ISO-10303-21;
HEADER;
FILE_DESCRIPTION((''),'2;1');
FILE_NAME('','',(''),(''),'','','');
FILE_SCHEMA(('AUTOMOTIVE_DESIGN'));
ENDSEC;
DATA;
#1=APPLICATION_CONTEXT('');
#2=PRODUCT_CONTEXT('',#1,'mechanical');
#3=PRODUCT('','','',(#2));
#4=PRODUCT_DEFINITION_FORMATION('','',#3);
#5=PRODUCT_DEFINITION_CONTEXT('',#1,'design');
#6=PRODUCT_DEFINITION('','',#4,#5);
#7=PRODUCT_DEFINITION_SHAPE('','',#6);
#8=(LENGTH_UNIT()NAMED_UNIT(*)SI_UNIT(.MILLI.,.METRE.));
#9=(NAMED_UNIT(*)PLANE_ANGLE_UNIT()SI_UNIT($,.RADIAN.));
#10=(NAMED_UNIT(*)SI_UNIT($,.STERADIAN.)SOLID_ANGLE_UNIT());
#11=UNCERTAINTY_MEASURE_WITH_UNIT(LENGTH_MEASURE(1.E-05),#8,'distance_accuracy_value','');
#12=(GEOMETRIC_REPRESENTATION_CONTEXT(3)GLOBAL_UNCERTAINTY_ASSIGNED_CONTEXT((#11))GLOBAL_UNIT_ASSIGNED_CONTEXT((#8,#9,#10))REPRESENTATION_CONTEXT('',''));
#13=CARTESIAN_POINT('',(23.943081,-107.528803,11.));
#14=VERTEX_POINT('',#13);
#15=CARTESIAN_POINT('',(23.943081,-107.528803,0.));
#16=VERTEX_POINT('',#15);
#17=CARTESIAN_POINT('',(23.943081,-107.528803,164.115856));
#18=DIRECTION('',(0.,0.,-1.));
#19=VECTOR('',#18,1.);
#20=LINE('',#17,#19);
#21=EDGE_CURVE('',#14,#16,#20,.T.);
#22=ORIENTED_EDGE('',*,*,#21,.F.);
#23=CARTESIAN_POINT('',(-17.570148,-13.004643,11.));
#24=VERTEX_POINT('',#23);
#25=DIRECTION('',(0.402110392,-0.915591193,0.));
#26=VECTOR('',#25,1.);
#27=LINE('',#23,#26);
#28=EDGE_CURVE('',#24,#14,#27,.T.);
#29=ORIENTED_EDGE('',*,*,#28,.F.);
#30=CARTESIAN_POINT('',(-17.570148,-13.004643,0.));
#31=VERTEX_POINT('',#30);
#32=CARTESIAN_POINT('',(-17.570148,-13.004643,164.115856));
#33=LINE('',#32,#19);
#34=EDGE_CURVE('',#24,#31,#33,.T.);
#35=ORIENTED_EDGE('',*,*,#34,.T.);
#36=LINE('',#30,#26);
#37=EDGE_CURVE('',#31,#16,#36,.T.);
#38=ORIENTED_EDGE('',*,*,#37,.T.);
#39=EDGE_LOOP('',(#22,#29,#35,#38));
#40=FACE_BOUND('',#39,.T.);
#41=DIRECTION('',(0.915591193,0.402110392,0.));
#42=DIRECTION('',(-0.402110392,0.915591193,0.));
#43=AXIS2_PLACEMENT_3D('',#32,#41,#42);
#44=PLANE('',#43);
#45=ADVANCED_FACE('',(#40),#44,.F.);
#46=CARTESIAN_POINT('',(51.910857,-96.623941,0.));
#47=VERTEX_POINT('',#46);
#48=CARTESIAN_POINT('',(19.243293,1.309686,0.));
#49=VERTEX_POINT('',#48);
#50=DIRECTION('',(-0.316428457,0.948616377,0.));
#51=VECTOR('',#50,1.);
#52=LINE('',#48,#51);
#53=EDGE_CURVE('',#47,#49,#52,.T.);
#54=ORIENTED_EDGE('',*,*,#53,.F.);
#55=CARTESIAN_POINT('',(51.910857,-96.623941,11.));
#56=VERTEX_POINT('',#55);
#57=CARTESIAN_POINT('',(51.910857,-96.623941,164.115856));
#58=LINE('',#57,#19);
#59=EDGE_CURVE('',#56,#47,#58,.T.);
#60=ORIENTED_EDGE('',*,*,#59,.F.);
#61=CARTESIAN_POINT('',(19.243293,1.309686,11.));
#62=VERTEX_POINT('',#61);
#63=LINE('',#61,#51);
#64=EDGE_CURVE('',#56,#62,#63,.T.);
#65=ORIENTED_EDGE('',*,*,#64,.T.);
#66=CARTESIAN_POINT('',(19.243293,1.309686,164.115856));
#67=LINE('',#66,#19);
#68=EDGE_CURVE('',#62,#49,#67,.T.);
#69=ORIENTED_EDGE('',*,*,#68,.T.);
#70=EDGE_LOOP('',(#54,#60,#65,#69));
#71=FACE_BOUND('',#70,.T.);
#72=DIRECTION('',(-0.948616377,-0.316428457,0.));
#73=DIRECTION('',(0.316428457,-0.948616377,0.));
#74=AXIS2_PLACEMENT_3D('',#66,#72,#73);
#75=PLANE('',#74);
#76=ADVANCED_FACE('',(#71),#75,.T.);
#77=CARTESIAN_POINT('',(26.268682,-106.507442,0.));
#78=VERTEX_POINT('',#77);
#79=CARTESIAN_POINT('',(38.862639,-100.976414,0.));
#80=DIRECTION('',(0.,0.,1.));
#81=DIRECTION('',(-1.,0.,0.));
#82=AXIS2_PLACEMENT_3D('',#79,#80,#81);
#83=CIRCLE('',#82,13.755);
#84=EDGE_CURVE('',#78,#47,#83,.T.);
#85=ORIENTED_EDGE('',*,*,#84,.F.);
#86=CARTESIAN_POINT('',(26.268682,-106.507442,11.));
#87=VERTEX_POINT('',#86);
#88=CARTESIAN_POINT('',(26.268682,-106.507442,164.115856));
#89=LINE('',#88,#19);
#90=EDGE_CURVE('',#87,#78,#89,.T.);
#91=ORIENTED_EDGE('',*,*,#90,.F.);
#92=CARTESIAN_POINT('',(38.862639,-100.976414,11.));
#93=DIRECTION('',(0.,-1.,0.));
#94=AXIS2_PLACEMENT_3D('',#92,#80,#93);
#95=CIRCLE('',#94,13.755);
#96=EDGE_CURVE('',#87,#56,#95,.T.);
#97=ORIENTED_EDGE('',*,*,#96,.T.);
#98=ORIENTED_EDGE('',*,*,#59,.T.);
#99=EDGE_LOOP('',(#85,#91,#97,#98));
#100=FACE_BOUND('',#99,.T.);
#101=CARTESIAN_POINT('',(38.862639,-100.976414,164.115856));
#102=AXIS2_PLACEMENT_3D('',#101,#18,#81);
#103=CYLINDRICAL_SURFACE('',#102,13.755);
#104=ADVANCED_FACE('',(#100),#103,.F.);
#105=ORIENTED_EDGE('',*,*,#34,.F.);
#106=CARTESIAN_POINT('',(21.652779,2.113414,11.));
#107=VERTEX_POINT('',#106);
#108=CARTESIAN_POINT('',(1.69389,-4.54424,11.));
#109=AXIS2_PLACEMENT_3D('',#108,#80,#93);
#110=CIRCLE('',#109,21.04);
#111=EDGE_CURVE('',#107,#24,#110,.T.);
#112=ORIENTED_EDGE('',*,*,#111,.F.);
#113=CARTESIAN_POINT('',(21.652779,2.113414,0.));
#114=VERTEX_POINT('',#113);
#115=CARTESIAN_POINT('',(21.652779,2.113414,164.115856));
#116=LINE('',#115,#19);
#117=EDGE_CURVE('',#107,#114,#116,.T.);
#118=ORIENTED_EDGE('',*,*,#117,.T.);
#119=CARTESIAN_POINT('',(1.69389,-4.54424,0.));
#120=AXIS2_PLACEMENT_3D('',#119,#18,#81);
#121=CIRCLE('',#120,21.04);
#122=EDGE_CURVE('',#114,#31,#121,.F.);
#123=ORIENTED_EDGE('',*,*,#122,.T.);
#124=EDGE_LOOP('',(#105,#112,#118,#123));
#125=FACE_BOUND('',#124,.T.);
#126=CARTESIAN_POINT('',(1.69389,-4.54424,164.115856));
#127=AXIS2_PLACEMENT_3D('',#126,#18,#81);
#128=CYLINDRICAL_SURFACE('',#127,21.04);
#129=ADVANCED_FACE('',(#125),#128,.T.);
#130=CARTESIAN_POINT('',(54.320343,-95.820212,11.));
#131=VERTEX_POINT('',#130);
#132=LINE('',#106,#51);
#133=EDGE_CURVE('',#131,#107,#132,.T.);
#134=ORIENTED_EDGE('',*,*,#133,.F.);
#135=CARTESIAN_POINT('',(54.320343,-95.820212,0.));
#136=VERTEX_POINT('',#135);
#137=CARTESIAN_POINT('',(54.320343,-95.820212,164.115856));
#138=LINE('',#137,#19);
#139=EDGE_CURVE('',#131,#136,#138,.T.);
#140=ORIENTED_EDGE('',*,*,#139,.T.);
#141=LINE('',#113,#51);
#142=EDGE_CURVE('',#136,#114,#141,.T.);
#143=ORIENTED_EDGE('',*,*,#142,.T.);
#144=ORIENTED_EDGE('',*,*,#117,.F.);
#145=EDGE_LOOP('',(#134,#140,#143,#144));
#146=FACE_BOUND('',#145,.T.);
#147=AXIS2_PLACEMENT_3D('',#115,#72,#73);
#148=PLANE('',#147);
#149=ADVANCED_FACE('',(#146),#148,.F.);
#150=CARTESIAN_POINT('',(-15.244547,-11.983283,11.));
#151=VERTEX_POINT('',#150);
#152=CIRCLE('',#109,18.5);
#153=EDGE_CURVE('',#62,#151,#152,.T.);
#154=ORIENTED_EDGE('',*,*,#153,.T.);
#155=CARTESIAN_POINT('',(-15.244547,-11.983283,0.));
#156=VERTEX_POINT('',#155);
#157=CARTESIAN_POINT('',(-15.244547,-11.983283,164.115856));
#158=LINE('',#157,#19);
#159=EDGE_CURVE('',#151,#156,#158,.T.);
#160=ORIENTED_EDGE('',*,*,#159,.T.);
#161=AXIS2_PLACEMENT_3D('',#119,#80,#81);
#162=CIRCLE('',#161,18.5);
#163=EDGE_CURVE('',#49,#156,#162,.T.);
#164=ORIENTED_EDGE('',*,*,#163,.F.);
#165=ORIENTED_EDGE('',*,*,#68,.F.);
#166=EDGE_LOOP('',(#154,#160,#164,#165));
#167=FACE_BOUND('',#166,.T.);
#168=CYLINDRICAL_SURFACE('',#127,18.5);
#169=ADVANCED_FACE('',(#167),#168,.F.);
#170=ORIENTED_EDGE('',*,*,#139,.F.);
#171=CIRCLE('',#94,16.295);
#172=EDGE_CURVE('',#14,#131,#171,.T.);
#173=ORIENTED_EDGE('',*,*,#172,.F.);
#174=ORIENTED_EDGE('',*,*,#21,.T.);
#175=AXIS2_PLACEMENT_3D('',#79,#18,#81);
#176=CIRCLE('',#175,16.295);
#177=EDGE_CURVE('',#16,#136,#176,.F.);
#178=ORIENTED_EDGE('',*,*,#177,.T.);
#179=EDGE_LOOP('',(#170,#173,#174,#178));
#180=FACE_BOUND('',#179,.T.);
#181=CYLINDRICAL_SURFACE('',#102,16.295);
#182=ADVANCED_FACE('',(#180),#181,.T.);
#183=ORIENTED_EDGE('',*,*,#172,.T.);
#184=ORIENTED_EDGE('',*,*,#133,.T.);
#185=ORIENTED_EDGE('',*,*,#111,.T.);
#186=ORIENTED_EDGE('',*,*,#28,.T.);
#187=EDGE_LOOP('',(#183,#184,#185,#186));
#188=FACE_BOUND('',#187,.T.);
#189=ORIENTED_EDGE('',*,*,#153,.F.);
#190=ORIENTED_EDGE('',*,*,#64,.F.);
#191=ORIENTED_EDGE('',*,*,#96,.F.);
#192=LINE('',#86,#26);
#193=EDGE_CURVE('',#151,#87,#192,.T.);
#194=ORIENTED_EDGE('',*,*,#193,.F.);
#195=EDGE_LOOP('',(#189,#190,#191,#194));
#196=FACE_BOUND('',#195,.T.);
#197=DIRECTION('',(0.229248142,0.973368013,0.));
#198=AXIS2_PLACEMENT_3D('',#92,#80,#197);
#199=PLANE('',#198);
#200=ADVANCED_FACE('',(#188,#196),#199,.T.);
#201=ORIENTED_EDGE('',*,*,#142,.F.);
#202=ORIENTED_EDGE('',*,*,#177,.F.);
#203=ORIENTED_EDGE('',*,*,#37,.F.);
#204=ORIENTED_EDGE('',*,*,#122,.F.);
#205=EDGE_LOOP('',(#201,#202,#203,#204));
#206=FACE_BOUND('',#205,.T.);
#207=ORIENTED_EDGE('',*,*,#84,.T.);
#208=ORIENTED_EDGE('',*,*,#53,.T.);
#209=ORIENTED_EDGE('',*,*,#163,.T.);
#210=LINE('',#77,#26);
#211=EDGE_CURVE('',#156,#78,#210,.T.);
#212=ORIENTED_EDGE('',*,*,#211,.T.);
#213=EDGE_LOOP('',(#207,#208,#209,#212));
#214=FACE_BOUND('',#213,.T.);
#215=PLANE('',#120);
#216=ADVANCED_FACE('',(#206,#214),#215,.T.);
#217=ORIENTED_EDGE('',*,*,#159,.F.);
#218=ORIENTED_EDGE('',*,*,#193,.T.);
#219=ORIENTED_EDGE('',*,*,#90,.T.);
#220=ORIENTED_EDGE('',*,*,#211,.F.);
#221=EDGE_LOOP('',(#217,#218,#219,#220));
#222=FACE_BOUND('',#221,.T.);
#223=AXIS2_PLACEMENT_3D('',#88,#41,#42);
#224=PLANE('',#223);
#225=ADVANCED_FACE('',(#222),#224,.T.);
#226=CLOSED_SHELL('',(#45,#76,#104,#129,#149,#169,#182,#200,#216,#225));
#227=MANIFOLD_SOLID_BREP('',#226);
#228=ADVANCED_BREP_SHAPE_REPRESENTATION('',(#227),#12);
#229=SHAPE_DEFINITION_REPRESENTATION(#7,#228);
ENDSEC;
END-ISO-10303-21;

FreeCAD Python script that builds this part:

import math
import FreeCAD as App
import Part
import Sketcher

doc = App.newDocument("Part")
body = doc.addObject("PartDesign::Body", "Body")

# Sketch on XY plane
sketch1 = body.newObject("Sketcher::SketchObject", "Sketch")
sketch1.AttachmentSupport = (doc.getObject("XY_Plane"), [""])
sketch1.MapMode = "FlatFace"
sketch1.addGeometry(Part.LineSegment(App.Vector(-18, -13, 0), App.Vector(24, -108, 0)), False)
sketch1.addGeometry(Part.ArcOfCircle(Part.Circle(App.Vector(39, -101, 0), App.Vector(0, 0, 1), 16), math.radians(-156), math.radians(18)), False)
sketch1.addGeometry(Part.LineSegment(App.Vector(54, -96, 0), App.Vector(22, 2, 0)), False)
sketch1.addGeometry(Part.ArcOfCircle(Part.Circle(App.Vector(2, -5, 0), App.Vector(0, 0, 1), 21), math.radians(18), math.radians(204)), False)
sketch1.addGeometry(Part.LineSegment(App.Vector(26, -107, 0), App.Vector(-15, -12, 0)), False)
sketch1.addGeometry(Part.ArcOfCircle(Part.Circle(App.Vector(2, -5, 0), App.Vector(0, 0, 1), 18), math.radians(18), math.radians(204)), False)
sketch1.addGeometry(Part.LineSegment(App.Vector(19, 1, 0), App.Vector(52, -97, 0)), False)
sketch1.addGeometry(Part.ArcOfCircle(Part.Circle(App.Vector(39, -101, 0), App.Vector(0, 0, 1), 14), math.radians(-156), math.radians(18)), False)
sketch1.addConstraint(Sketcher.Constraint("Tangent", 0, 2, 1, 1))
sketch1.addConstraint(Sketcher.Constraint("Tangent", 1, 2, 2, 1))
sketch1.addConstraint(Sketcher.Constraint("Tangent", 2, 2, 3, 1))
sketch1.addConstraint(Sketcher.Constraint("Tangent", 3, 2, 0, 1))
sketch1.addConstraint(Sketcher.Constraint("Tangent", 4, 2, 5, 2))
sketch1.addConstraint(Sketcher.Constraint("Tangent", 5, 1, 6, 1))
sketch1.addConstraint(Sketcher.Constraint("Tangent", 6, 2, 7, 2))
sketch1.addConstraint(Sketcher.Constraint("Tangent", 7, 1, 4, 1))
sketch1.addConstraint(Sketcher.Constraint("Coincident", 5, 3, 3, 3))
sketch1.addConstraint(Sketcher.Constraint("Coincident", 7, 3, 1, 3))
sketch1.addConstraint(Sketcher.Constraint("Parallel", 0, 4))
sketch1.addConstraint(Sketcher.Constraint("Radius", 5, 18.5))
sketch1.addConstraint(Sketcher.Constraint("Radius", 3, 21.04))
sketch1.addConstraint(Sketcher.Constraint("Radius", 1, 16.295))
sketch1.addConstraint(Sketcher.Constraint("DistanceY", 7, 3, 1, 2, 5.156202))
sketch1.addConstraint(Sketcher.Constraint("Distance", 0, 103.238389))
sketch1.addConstraint(Sketcher.Constraint("DistanceX", -1, 1, 1, 3, 38.862639))
sketch1.addConstraint(Sketcher.Constraint("DistanceY", 3, 3, -1, 1, 4.54424))
pad1 = body.newObject("PartDesign::Pad", "Pad")
pad1.Profile = sketch1
pad1.Length = 11

doc.recompute()
